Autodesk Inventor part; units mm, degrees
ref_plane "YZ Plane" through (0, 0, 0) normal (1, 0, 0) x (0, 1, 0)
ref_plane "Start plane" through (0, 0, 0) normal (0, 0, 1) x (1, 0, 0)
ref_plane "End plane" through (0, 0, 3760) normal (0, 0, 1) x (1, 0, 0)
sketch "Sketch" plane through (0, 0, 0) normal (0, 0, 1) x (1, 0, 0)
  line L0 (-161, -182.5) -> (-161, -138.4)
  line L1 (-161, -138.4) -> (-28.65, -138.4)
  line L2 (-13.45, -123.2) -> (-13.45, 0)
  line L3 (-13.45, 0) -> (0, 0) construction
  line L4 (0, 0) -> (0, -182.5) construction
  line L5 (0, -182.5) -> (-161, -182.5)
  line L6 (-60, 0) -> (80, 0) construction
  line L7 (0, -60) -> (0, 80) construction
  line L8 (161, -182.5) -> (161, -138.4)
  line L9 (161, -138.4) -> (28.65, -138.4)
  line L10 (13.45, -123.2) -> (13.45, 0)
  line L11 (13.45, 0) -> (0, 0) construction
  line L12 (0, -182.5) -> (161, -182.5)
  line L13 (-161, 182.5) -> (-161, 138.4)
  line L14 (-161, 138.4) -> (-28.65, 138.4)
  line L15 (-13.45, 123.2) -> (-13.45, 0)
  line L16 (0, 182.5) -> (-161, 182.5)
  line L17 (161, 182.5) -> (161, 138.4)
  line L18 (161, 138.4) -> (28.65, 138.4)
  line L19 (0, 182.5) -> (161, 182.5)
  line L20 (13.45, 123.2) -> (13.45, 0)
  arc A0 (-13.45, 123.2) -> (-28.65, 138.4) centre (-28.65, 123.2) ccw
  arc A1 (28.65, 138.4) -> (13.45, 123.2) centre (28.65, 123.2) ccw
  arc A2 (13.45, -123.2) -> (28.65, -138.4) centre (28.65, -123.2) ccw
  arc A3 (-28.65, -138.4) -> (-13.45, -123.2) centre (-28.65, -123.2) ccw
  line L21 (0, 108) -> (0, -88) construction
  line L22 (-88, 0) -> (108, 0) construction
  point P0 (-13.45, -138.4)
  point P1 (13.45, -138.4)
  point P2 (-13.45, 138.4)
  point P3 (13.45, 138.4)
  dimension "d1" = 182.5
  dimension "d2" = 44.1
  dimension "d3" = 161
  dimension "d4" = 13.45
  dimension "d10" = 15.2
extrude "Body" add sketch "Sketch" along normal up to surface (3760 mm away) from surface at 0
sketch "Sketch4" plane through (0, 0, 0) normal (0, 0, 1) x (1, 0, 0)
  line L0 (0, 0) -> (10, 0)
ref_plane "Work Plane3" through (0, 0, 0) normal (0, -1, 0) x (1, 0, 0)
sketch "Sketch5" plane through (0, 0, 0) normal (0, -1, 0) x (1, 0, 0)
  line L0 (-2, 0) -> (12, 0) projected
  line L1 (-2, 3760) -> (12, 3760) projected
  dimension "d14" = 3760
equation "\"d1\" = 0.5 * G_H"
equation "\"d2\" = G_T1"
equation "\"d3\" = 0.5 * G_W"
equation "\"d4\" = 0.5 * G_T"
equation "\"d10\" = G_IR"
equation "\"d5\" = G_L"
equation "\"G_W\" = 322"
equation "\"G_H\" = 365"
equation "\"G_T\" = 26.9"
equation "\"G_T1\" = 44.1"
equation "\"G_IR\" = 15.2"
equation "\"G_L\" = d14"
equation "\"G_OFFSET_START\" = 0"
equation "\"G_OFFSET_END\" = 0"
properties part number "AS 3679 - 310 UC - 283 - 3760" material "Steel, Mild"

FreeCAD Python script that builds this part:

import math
import FreeCAD as App
import Part
import Sketcher

V = App.Vector
Q = App.Units.Quantity

doc = App.newDocument("Part")
body = doc.addObject("PartDesign::Body", "Body")

# Sketch on XY plane
sketch1 = body.newObject("Sketcher::SketchObject", "Sketch")
sketch1.AttachmentSupport = (doc.getObject("XY_Plane"), [""])
sketch1.MapMode = "FlatFace"
sketch1.addGeometry(Part.LineSegment(V(-161, -138.4, 0), V(-161, -182.5, 0)), False)
sketch1.addGeometry(Part.LineSegment(V(-161, -182.5, 0), V(161, -182.5, 0)), False)
sketch1.addGeometry(Part.LineSegment(V(161, -182.5, 0), V(161, -138.4, 0)), False)
sketch1.addGeometry(Part.LineSegment(V(161, -138.4, 0), V(28.65, -138.4, 0)), False)
sketch1.addGeometry(Part.ArcOfCircle(Part.Circle(V(28.65, -123.2, 0), V(0, 0, 1), 15.2), math.radians(180), math.radians(270)), False)
sketch1.addGeometry(Part.LineSegment(V(13.45, -123.2, 0), V(13.45, 123.2, 0)), False)
sketch1.addGeometry(Part.ArcOfCircle(Part.Circle(V(28.65, 123.2, 0), V(0, 0, 1), 15.2), math.radians(90), math.radians(180)), False)
sketch1.addGeometry(Part.LineSegment(V(28.65, 138.4, 0), V(161, 138.4, 0)), False)
sketch1.addGeometry(Part.LineSegment(V(161, 138.4, 0), V(161, 182.5, 0)), False)
sketch1.addGeometry(Part.LineSegment(V(161, 182.5, 0), V(-161, 182.5, 0)), False)
sketch1.addGeometry(Part.LineSegment(V(-161, 182.5, 0), V(-161, 138.4, 0)), False)
sketch1.addGeometry(Part.LineSegment(V(-161, 138.4, 0), V(-28.65, 138.4, 0)), False)
sketch1.addGeometry(Part.ArcOfCircle(Part.Circle(V(-28.65, 123.2, 0), V(0, 0, 1), 15.2), math.radians(0), math.radians(90)), False)
sketch1.addGeometry(Part.LineSegment(V(-13.45, 123.2, 0), V(-13.45, -123.2, 0)), False)
sketch1.addGeometry(Part.ArcOfCircle(Part.Circle(V(-28.65, -123.2, 0), V(0, 0, 1), 15.2), math.radians(-90), math.radians(0)), False)
sketch1.addGeometry(Part.LineSegment(V(-28.65, -138.4, 0), V(-161, -138.4, 0)), False)
sketch1.addConstraint(Sketcher.Constraint("Coincident", 0, 2, 1, 1))
sketch1.addConstraint(Sketcher.Constraint("Coincident", 1, 2, 2, 1))
sketch1.addConstraint(Sketcher.Constraint("Coincident", 2, 2, 3, 1))
sketch1.addConstraint(Sketcher.Constraint("Tangent", 3, 2, 4, 2))
sketch1.addConstraint(Sketcher.Constraint("Tangent", 4, 1, 5, 1))
sketch1.addConstraint(Sketcher.Constraint("Tangent", 5, 2, 6, 2))
sketch1.addConstraint(Sketcher.Constraint("Tangent", 6, 1, 7, 1))
sketch1.addConstraint(Sketcher.Constraint("Coincident", 7, 2, 8, 1))
sketch1.addConstraint(Sketcher.Constraint("Coincident", 8, 2, 9, 1))
sketch1.addConstraint(Sketcher.Constraint("Coincident", 9, 2, 10, 1))
sketch1.addConstraint(Sketcher.Constraint("Coincident", 10, 2, 11, 1))
sketch1.addConstraint(Sketcher.Constraint("Tangent", 11, 2, 12, 2))
sketch1.addConstraint(Sketcher.Constraint("Tangent", 12, 1, 13, 1))
sketch1.addConstraint(Sketcher.Constraint("Tangent", 13, 2, 14, 2))
sketch1.addConstraint(Sketcher.Constraint("Tangent", 14, 1, 15, 1))
sketch1.addConstraint(Sketcher.Constraint("Coincident", 15, 2, 0, 1))
sketch1.addConstraint(Sketcher.Constraint("Vertical", 0))
sketch1.addConstraint(Sketcher.Constraint("Horizontal", 1))
sketch1.addConstraint(Sketcher.Constraint("Vertical", 2))
sketch1.addConstraint(Sketcher.Constraint("Horizontal", 3))
sketch1.addConstraint(Sketcher.Constraint("Vertical", 5))
sketch1.addConstraint(Sketcher.Constraint("Horizontal", 7))
sketch1.addConstraint(Sketcher.Constraint("Vertical", 8))
sketch1.addConstraint(Sketcher.Constraint("Horizontal", 9))
sketch1.addConstraint(Sketcher.Constraint("Vertical", 10))
sketch1.addConstraint(Sketcher.Constraint("Horizontal", 11))
sketch1.addConstraint(Sketcher.Constraint("Vertical", 13))
sketch1.addConstraint(Sketcher.Constraint("Horizontal", 15))
sketch1.addConstraint(Sketcher.Constraint("Equal", 4, 6))
sketch1.addConstraint(Sketcher.Constraint("Equal", 6, 12))
sketch1.addConstraint(Sketcher.Constraint("Equal", 12, 14))
sketch1.addConstraint(Sketcher.Constraint("Symmetric", 4, 3, 12, 3, -1, 1))
sketch1.addConstraint(Sketcher.Constraint("Symmetric", 0, 2, 8, 2, -1, 1))
sketch1.addConstraint(Sketcher.Constraint("Symmetric", 7, 2, 10, 2, -2))
sketch1.addConstraint(Sketcher.Constraint("Symmetric", 2, 2, 15, 2, -2))
sketch1.addConstraint(Sketcher.Constraint("Radius", 4, Q("15.2 mm")))
sketch1.addConstraint(Sketcher.Constraint("DistanceY", 0, 2, 0, 1, Q("44.1 mm")))
sketch1.addConstraint(Sketcher.Constraint("DistanceX", 0, 2, -1, 1, Q("161 mm")))
sketch1.addConstraint(Sketcher.Constraint("DistanceY", 0, 2, -1, 1, Q("182.5 mm")))
sketch1.addConstraint(Sketcher.Constraint("DistanceX", -1, 1, 4, 1, Q("13.45 mm")))
pad1 = body.newObject("PartDesign::Pad", "Pad")
pad1.Profile = sketch1
pad1.Length = 3760

doc.recompute()
